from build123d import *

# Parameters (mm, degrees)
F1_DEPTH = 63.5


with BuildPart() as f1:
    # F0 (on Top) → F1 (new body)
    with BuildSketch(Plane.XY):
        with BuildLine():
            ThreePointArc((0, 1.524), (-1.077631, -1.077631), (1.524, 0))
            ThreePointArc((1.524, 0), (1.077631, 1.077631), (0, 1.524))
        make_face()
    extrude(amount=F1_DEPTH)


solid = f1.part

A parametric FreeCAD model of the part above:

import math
import FreeCAD as App
import Part
import Sketcher
Q = App.Units.Quantity

doc = App.newDocument("Part")
body = doc.addObject("PartDesign::Body", "Body")

# Sketch on XY plane
sketch1 = doc.addObject("Sketcher::SketchObject", "Sketch")
body.addObject(sketch1)
sketch1.AttachmentSupport = (doc.XY_Plane, [""])
sketch1.MapMode = "FlatFace"
sketch1.addGeometry(Part.ArcOfCircle(Part.Circle(App.Vector(0, 0, 0), App.Vector(0, 0, 1), 1.524), math.radians(89.999994), math.radians(360.000006)), False)
sketch1.addGeometry(Part.ArcOfCircle(Part.Circle(App.Vector(0.000001, 0.000001, 0), App.Vector(0, 0, 1), 1.523999), math.radians(-0.000034), math.radians(90.000034)), False)
sketch1.addConstraint(Sketcher.Constraint("Tangent", 0, 1, 1, 2))
sketch1.addConstraint(Sketcher.Constraint("Coincident", 1, 1, 0, 2))
sketch1.addConstraint(Sketcher.Constraint("Coincident", 0, 3, -1, 1))
sketch1.addConstraint(Sketcher.Constraint("PointOnObject", 0, 1, -2))
sketch1.addConstraint(Sketcher.Constraint("PointOnObject", 1, 1, -1))
sketch1.addConstraint(Sketcher.Constraint("Radius", 0, Q("0.06 in")))
pad1 = doc.addObject("PartDesign::Pad", "Pad")
body.addObject(pad1)
pad1.Profile = sketch1
pad1.Length = Q("2.5 in")

doc.recompute()
